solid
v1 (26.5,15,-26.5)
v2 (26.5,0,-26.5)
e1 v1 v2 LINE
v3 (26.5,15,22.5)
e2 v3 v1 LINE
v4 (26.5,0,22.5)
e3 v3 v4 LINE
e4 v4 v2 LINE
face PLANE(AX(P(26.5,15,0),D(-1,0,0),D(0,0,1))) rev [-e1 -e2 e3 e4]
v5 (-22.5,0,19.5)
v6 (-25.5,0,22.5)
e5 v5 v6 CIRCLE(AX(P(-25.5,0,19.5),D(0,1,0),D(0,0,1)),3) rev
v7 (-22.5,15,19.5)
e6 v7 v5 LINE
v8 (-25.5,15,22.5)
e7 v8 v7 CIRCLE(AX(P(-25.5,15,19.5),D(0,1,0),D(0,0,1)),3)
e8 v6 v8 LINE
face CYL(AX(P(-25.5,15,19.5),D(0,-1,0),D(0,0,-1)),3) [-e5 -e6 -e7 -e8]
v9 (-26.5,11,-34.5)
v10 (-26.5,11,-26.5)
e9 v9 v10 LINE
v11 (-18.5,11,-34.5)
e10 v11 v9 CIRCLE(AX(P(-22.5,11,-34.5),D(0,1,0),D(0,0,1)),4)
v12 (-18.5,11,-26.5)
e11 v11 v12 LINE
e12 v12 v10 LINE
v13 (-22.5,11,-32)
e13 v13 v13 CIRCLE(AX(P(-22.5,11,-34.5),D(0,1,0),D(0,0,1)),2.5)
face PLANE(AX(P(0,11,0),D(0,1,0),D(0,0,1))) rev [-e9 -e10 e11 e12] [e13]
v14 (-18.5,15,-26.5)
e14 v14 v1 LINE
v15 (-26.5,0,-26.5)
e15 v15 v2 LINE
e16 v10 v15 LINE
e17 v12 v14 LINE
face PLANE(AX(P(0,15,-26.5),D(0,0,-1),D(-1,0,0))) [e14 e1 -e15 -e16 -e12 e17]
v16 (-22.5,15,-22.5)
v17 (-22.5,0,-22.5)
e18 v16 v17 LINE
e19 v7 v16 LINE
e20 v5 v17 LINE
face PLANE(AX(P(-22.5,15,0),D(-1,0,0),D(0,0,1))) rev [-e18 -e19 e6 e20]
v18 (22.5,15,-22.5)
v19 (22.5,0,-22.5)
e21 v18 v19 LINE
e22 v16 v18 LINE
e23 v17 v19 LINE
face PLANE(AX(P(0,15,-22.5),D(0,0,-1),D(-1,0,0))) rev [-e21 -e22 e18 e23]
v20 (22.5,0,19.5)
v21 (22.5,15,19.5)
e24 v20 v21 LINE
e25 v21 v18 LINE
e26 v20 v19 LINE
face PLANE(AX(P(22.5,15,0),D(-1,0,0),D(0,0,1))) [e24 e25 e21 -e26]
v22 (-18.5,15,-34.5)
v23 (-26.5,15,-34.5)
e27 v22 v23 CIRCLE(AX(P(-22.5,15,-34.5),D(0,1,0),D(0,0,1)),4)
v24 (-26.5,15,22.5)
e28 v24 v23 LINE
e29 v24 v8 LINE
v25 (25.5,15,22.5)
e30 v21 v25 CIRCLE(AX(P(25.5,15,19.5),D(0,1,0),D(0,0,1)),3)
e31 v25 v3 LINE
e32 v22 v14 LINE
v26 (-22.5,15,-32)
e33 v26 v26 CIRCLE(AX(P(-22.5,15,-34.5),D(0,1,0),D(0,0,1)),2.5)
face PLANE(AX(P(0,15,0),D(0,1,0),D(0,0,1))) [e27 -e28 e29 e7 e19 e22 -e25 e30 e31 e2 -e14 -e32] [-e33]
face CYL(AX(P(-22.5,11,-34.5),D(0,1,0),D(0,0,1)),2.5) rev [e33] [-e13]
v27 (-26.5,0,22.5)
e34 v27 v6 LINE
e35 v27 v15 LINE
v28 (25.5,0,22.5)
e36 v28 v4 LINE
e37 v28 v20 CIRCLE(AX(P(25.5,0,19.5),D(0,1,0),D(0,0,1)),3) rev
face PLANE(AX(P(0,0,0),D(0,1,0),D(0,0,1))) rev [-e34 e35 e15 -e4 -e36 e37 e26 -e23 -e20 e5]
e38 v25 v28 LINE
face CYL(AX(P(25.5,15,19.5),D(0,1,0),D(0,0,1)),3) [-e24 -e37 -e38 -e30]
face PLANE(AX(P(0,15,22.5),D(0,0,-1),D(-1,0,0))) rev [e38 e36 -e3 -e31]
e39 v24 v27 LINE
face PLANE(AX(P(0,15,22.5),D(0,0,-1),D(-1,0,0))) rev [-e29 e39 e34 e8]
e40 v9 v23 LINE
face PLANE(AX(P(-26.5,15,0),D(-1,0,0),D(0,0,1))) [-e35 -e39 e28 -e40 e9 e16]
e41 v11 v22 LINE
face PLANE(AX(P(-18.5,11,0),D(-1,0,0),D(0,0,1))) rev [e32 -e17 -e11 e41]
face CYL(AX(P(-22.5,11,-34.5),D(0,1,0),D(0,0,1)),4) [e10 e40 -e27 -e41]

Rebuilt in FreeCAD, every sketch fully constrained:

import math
import FreeCAD as App
import Part
import Sketcher

V = App.Vector
Q = App.Units.Quantity


def edges_at(feature, points):
    """Names of the edges that pass closest to the given points."""
    edges = feature.Shape.Edges
    near = lambda p: min(range(len(edges)), key=lambda i: edges[i].distToShape(Part.Vertex(*p))[0])
    return sorted({f"Edge{near(p) + 1}" for p in points})


def add_polygon(sketch, points):
    """Adds a closed chain of lines whose ends are joined by coincident constraints."""
    first, n = sketch.GeometryCount, len(points)
    for a, b in zip(points, points[1:] + points[:1]):
        sketch.addGeometry(Part.LineSegment(App.Vector(*a, 0), App.Vector(*b, 0)), False)
    for i in range(n):
        sketch.addConstraint(Sketcher.Constraint("Coincident", first + i, 2, first + (i + 1) % n, 1))

doc = App.newDocument("Part")
body = doc.addObject("PartDesign::Body", "Body")

sketch1 = doc.addObject("Sketcher::SketchObject", "Sketch")
body.addObject(sketch1)
sketch1.AttachmentSupport = (doc.XZ_Plane, [""])
sketch1.MapMode = "FlatFace"
add_polygon(sketch1, [(22.5, -22.5), (22.5, 22.5), (26.5, 22.5), (26.5, -26.5), (-26.5, -26.5), (-26.5, 22.5), (-22.5, 22.5), (-22.5, -22.5)])
sketch1.addConstraint([
    Sketcher.Constraint("Vertical", 0),
    Sketcher.Constraint("Horizontal", 1),
    Sketcher.Constraint("Vertical", 2),
    Sketcher.Constraint("Horizontal", 3),
    Sketcher.Constraint("Vertical", 4),
    Sketcher.Constraint("Horizontal", 5),
    Sketcher.Constraint("Vertical", 6),
    Sketcher.Constraint("Horizontal", 7),
    Sketcher.Constraint("Symmetric", 0, 2, 6, 2, -1, 1),
    Sketcher.Constraint("Symmetric", 1, 2, 4, 2, -2),
    Sketcher.Constraint("Equal", 7, 0),
    Sketcher.Constraint("DistanceX", 1, 1, 1, 2, Q("4 mm")),
    Sketcher.Constraint("DistanceX", 3, 2, 3, 1, Q("53 mm")),
    Sketcher.Constraint("DistanceY", 2, 2, 2, 1, Q("49 mm")),
])
pad1 = doc.addObject("PartDesign::Pad", "Pad")
body.addObject(pad1)
pad1.Profile = sketch1
pad1.Length = 15
pad1.Reversed = True
doc.recompute()

fillet = doc.addObject("PartDesign::Fillet", "Fillet")
body.addObject(fillet)
fillet.Base = (pad1, edges_at(pad1, [(-22.5, 7.5, 22.5), (22.5, 7.5, 22.5)]))
fillet.Radius = 3

sketch2 = doc.addObject("Sketcher::SketchObject", "Sketch001")
body.addObject(sketch2)
sketch2.AttachmentSupport = (doc.XZ_Plane, [""])
sketch2.MapMode = "FlatFace"
sketch2.AttachmentOffset = App.Placement(V(0, 0, -15), App.Rotation())
sketch2.addGeometry([
    Part.ArcOfCircle(Part.Circle(V(-22.5, -34.5, 0), V(0, 0, 1), 4), math.radians(180), math.radians(360)),
    Part.LineSegment(V(-26.5, -34.5, 0), V(-26.5, -26.5, 0)),
    Part.LineSegment(V(-26.5, -26.5, 0), V(-18.5, -26.5, 0)),
    Part.LineSegment(V(-18.5, -26.5, 0), V(-18.5, -34.5, 0)),
    Part.Circle(V(-22.5, -34.5, 0), V(0, 0, 1), 2.5),
], False)
sketch2.addConstraint([
    Sketcher.Constraint("Tangent", 0, 1, 1, 1),
    Sketcher.Constraint("Coincident", 1, 2, 2, 1),
    Sketcher.Constraint("Coincident", 2, 2, 3, 1),
    Sketcher.Constraint("Tangent", 3, 2, 0, 2),
    Sketcher.Constraint("Vertical", 1),
    Sketcher.Constraint("Horizontal", 2),
    Sketcher.Constraint("Vertical", 3),
    Sketcher.Constraint("Coincident", 4, 3, 0, 3),
    Sketcher.Constraint("Equal", 2, 1),
    Sketcher.Constraint("Diameter", 4, Q("5 mm")),
    Sketcher.Constraint("Radius", 0, Q("4 mm")),
    Sketcher.Constraint("DistanceX", 0, 3, -1, 1, Q("22.5 mm")),
    Sketcher.Constraint("DistanceY", 0, 3, -1, 1, Q("34.5 mm")),
])
pad2 = doc.addObject("PartDesign::Pad", "Pad001")
body.addObject(pad2)
pad2.Profile = sketch2
pad2.Length = 4

doc.recompute()
